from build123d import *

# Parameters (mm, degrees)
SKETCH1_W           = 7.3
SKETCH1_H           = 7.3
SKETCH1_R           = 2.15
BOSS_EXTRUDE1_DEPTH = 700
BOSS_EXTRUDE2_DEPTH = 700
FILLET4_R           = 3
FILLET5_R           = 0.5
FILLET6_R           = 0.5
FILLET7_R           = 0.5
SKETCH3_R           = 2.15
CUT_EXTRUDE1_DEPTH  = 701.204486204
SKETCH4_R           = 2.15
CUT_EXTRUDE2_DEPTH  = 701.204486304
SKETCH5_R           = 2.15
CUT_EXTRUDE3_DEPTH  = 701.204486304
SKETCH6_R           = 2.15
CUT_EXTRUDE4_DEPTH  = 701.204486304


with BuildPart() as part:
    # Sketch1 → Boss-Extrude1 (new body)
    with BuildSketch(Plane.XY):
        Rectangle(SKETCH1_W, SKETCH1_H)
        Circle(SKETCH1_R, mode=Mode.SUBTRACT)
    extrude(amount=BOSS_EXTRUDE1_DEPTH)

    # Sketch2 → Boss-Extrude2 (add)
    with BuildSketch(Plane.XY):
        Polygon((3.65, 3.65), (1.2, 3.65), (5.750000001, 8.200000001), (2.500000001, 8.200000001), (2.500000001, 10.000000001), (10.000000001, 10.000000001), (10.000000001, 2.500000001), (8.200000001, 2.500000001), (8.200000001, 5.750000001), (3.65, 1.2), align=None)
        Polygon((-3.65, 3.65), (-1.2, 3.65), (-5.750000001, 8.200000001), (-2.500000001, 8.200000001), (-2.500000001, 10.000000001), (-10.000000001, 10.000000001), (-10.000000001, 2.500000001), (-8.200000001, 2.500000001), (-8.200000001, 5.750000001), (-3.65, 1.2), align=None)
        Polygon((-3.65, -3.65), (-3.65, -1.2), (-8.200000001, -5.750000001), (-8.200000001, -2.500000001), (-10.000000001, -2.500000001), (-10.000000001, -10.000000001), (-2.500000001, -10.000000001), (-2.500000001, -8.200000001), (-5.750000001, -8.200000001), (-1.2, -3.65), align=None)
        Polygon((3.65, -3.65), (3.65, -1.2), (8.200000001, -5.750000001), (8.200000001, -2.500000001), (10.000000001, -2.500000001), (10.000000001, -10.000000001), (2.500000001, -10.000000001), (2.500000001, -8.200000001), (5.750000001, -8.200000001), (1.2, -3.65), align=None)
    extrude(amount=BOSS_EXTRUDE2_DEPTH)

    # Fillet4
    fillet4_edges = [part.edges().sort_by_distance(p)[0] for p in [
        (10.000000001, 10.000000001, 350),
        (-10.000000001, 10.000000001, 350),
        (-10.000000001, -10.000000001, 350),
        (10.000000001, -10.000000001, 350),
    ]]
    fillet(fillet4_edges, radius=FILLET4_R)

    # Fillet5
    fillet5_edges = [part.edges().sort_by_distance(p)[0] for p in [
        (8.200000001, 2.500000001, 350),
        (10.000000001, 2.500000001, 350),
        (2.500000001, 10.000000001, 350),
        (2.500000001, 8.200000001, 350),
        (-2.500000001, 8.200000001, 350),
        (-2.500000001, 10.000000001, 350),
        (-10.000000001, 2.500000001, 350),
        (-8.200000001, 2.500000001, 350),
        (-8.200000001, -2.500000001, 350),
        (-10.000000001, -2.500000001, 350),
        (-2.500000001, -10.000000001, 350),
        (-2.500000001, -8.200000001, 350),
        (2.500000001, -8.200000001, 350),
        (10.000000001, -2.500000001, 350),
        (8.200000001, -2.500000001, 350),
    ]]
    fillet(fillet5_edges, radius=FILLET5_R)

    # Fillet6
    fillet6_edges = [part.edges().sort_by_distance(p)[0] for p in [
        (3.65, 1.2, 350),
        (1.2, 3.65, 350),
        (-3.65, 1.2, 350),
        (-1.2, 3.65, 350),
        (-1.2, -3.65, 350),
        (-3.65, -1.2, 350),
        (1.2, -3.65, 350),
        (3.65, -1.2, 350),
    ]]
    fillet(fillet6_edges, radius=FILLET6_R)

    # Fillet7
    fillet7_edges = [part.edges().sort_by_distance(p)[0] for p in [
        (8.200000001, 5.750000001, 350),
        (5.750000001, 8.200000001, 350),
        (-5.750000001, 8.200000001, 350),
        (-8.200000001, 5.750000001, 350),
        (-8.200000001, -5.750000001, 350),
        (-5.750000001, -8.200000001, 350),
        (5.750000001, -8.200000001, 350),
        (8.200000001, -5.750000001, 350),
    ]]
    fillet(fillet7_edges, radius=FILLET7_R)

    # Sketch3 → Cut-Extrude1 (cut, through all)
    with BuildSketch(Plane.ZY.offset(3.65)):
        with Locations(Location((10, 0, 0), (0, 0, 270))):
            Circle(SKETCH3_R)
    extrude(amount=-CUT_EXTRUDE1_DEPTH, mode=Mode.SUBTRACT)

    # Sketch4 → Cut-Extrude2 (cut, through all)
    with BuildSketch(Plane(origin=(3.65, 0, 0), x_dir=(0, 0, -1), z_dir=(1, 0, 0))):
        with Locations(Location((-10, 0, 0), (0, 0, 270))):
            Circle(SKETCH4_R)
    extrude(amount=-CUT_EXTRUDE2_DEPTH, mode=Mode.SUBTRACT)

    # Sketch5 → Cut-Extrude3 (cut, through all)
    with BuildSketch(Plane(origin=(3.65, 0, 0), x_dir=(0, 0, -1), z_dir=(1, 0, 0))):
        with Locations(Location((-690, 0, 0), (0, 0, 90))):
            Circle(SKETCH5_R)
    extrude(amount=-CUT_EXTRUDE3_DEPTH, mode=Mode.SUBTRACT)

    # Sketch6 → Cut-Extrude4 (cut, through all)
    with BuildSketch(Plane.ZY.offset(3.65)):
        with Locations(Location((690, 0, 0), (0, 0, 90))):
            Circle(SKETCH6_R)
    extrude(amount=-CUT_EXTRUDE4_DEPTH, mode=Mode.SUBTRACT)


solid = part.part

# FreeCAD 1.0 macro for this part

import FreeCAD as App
import Part
import Sketcher

V = App.Vector
Q = App.Units.Quantity


def edges_at(feature, points):
    """Names of the edges that pass closest to the given points."""
    edges = feature.Shape.Edges
    near = lambda p: min(range(len(edges)), key=lambda i: edges[i].distToShape(Part.Vertex(*p))[0])
    return sorted({f"Edge{near(p) + 1}" for p in points})

doc = App.newDocument("Part")
body = doc.addObject("PartDesign::Body", "Body")

# Sketch on XY plane
sketch1 = body.newObject("Sketcher::SketchObject", "Sketch")
sketch1.AttachmentSupport = (doc.getObject("XY_Plane"), [""])
sketch1.MapMode = "FlatFace"
sketch1.addGeometry([
    Part.LineSegment(V(-3.6, 3.6, 0), V(-3.6, -3.6, 0)),  # 0
    Part.LineSegment(V(-3.6, -3.6, 0), V(3.6, -3.6, 0)),  # 1
    Part.LineSegment(V(3.6, -3.6, 0), V(3.6, 3.6, 0)),  # 2
    Part.LineSegment(V(3.6, 3.6, 0), V(-3.6, 3.6, 0)),  # 3
    Part.Circle(V(0, 0, 0), V(0, 0, 1), 2.1),  # 4
], False)
sketch1.addConstraint([
    Sketcher.Constraint("Coincident", 0, 2, 1, 1),
    Sketcher.Constraint("Coincident", 1, 2, 2, 1),
    Sketcher.Constraint("Coincident", 2, 2, 3, 1),
    Sketcher.Constraint("Coincident", 3, 2, 0, 1),
    Sketcher.Constraint("Vertical", 0),
    Sketcher.Constraint("Horizontal", 1),
    Sketcher.Constraint("Vertical", 2),
    Sketcher.Constraint("Horizontal", 3),
    Sketcher.Constraint("Coincident", 4, 3, -1, 1),
    Sketcher.Constraint("Symmetric", 0, 2, 2, 2, -1, 1),
    Sketcher.Constraint("Equal", 3, 0),
    Sketcher.Constraint("Diameter", 4, Q("4.3 mm")),
    Sketcher.Constraint("DistanceX", 1, 1, 1, 2, Q("7.3 mm")),
])
pad1 = body.newObject("PartDesign::Pad", "Pad")
pad1.Profile = sketch1
pad1.Length = 700

# Sketch on XY plane
sketch2 = body.newObject("Sketcher::SketchObject", "Sketch001")
sketch2.AttachmentSupport = (doc.getObject("XY_Plane"), [""])
sketch2.MapMode = "FlatFace"
sketch2.addGeometry([
    Part.LineSegment(V(1.2, 3.6, 0), V(3.6, 3.6, 0)),  # 0
    Part.LineSegment(V(3.6, 3.6, 0), V(3.6, 1.2, 0)),  # 1
    Part.LineSegment(V(3.6, 1.2, 0), V(8.2, 5.8, 0)),  # 2
    Part.LineSegment(V(8.2, 5.8, 0), V(8.2, 2.5, 0)),  # 3
    Part.LineSegment(V(8.2, 2.5, 0), V(10, 2.5, 0)),  # 4
    Part.LineSegment(V(10, 2.5, 0), V(10, 10, 0)),  # 5
    Part.LineSegment(V(10, 10, 0), V(2.5, 10, 0)),  # 6
    Part.LineSegment(V(2.5, 10, 0), V(2.5, 8.2, 0)),  # 7
    Part.LineSegment(V(2.5, 8.2, 0), V(5.8, 8.2, 0)),  # 8
    Part.LineSegment(V(5.8, 8.2, 0), V(1.2, 3.6, 0)),  # 9
    Part.LineSegment(V(-3.6, 3.6, 0), V(-1.2, 3.6, 0)),  # 10
    Part.LineSegment(V(-1.2, 3.6, 0), V(-5.8, 8.2, 0)),  # 11
    Part.LineSegment(V(-5.8, 8.2, 0), V(-2.5, 8.2, 0)),  # 12
    Part.LineSegment(V(-2.5, 8.2, 0), V(-2.5, 10, 0)),  # 13
    Part.LineSegment(V(-2.5, 10, 0), V(-10, 10, 0)),  # 14
    Part.LineSegment(V(-10, 10, 0), V(-10, 2.5, 0)),  # 15
    Part.LineSegment(V(-10, 2.5, 0), V(-8.2, 2.5, 0)),  # 16
    Part.LineSegment(V(-8.2, 2.5, 0), V(-8.2, 5.8, 0)),  # 17
    Part.LineSegment(V(-8.2, 5.8, 0), V(-3.6, 1.2, 0)),  # 18
    Part.LineSegment(V(-3.6, 1.2, 0), V(-3.6, 3.6, 0)),  # 19
    Part.LineSegment(V(-3.6, -3.6, 0), V(-3.6, -1.2, 0)),  # 20
    Part.LineSegment(V(-3.6, -1.2, 0), V(-8.2, -5.8, 0)),  # 21
    Part.LineSegment(V(-8.2, -5.8, 0), V(-8.2, -2.5, 0)),  # 22
    Part.LineSegment(V(-8.2, -2.5, 0), V(-10, -2.5, 0)),  # 23
    Part.LineSegment(V(-10, -2.5, 0), V(-10, -10, 0)),  # 24
    Part.LineSegment(V(-10, -10, 0), V(-2.5, -10, 0)),  # 25
    Part.LineSegment(V(-2.5, -10, 0), V(-2.5, -8.2, 0)),  # 26
    Part.LineSegment(V(-2.5, -8.2, 0), V(-5.8, -8.2, 0)),  # 27
    Part.LineSegment(V(-5.8, -8.2, 0), V(-1.2, -3.6, 0)),  # 28
    Part.LineSegment(V(-1.2, -3.6, 0), V(-3.6, -3.6, 0)),  # 29
    Part.LineSegment(V(3.6, -1.2, 0), V(3.6, -3.6, 0)),  # 30
    Part.LineSegment(V(3.6, -3.6, 0), V(1.2, -3.6, 0)),  # 31
    Part.LineSegment(V(1.2, -3.6, 0), V(5.8, -8.2, 0)),  # 32
    Part.LineSegment(V(5.8, -8.2, 0), V(2.5, -8.2, 0)),  # 33
    Part.LineSegment(V(2.5, -8.2, 0), V(2.5, -10, 0)),  # 34
    Part.LineSegment(V(2.5, -10, 0), V(10, -10, 0)),  # 35
    Part.LineSegment(V(10, -10, 0), V(10, -2.5, 0)),  # 36
    Part.LineSegment(V(10, -2.5, 0), V(8.2, -2.5, 0)),  # 37
    Part.LineSegment(V(8.2, -2.5, 0), V(8.2, -5.8, 0)),  # 38
    Part.LineSegment(V(8.2, -5.8, 0), V(3.6, -1.2, 0)),  # 39
], False)
sketch2.addConstraint([
    Sketcher.Constraint("Coincident", 0, 2, 1, 1),
    Sketcher.Constraint("Coincident", 1, 2, 2, 1),
    Sketcher.Constraint("Coincident", 2, 2, 3, 1),
    Sketcher.Constraint("Coincident", 3, 2, 4, 1),
    Sketcher.Constraint("Coincident", 4, 2, 5, 1),
    Sketcher.Constraint("Coincident", 5, 2, 6, 1),
    Sketcher.Constraint("Coincident", 6, 2, 7, 1),
    Sketcher.Constraint("Coincident", 7, 2, 8, 1),
    Sketcher.Constraint("Coincident", 8, 2, 9, 1),
    Sketcher.Constraint("Coincident", 9, 2, 0, 1),
    Sketcher.Constraint("Coincident", 10, 2, 11, 1),
    Sketcher.Constraint("Coincident", 11, 2, 12, 1),
    Sketcher.Constraint("Coincident", 12, 2, 13, 1),
    Sketcher.Constraint("Coincident", 13, 2, 14, 1),
    Sketcher.Constraint("Coincident", 14, 2, 15, 1),
    Sketcher.Constraint("Coincident", 15, 2, 16, 1),
    Sketcher.Constraint("Coincident", 16, 2, 17, 1),
    Sketcher.Constraint("Coincident", 17, 2, 18, 1),
    Sketcher.Constraint("Coincident", 18, 2, 19, 1),
    Sketcher.Constraint("Coincident", 19, 2, 10, 1),
    Sketcher.Constraint("Coincident", 20, 2, 21, 1),
    Sketcher.Constraint("Coincident", 21, 2, 22, 1),
    Sketcher.Constraint("Coincident", 22, 2, 23, 1),
    Sketcher.Constraint("Coincident", 23, 2, 24, 1),
    Sketcher.Constraint("Coincident", 24, 2, 25, 1),
    Sketcher.Constraint("Coincident", 25, 2, 26, 1),
    Sketcher.Constraint("Coincident", 26, 2, 27, 1),
    Sketcher.Constraint("Coincident", 27, 2, 28, 1),
    Sketcher.Constraint("Coincident", 28, 2, 29, 1),
    Sketcher.Constraint("Coincident", 29, 2, 20, 1),
    Sketcher.Constraint("Coincident", 30, 2, 31, 1),
    Sketcher.Constraint("Coincident", 31, 2, 32, 1),
    Sketcher.Constraint("Coincident", 32, 2, 33, 1),
    Sketcher.Constraint("Coincident", 33, 2, 34, 1),
    Sketcher.Constraint("Coincident", 34, 2, 35, 1),
    Sketcher.Constraint("Coincident", 35, 2, 36, 1),
    Sketcher.Constraint("Coincident", 36, 2, 37, 1),
    Sketcher.Constraint("Coincident", 37, 2, 38, 1),
    Sketcher.Constraint("Coincident", 38, 2, 39, 1),
    Sketcher.Constraint("Coincident", 39, 2, 30, 1),
    Sketcher.Constraint("Horizontal", 0),
    Sketcher.Constraint("Vertical", 1),
    Sketcher.Constraint("Vertical", 3),
    Sketcher.Constraint("Horizontal", 4),
    Sketcher.Constraint("Vertical", 5),
    Sketcher.Constraint("Horizontal", 6),
    Sketcher.Constraint("Vertical", 7),
    Sketcher.Constraint("Horizontal", 8),
    Sketcher.Constraint("Horizontal", 10),
    Sketcher.Constraint("Horizontal", 12),
    Sketcher.Constraint("Vertical", 13),
    Sketcher.Constraint("Horizontal", 14),
    Sketcher.Constraint("Vertical", 15),
    Sketcher.Constraint("Horizontal", 16),
    Sketcher.Constraint("Vertical", 17),
    Sketcher.Constraint("Vertical", 19),
    Sketcher.Constraint("Vertical", 20),
    Sketcher.Constraint("Vertical", 22),
    Sketcher.Constraint("Horizontal", 23),
    Sketcher.Constraint("Vertical", 24),
    Sketcher.Constraint("Horizontal", 25),
    Sketcher.Constraint("Vertical", 26),
    Sketcher.Constraint("Horizontal", 27),
    Sketcher.Constraint("Horizontal", 29),
    Sketcher.Constraint("Vertical", 30),
    Sketcher.Constraint("Horizontal", 31),
    Sketcher.Constraint("Horizontal", 33),
    Sketcher.Constraint("Vertical", 34),
    Sketcher.Constraint("Horizontal", 35),
    Sketcher.Constraint("Vertical", 36),
    Sketcher.Constraint("Horizontal", 37),
    Sketcher.Constraint("Vertical", 38),
    Sketcher.Constraint("Symmetric", 1, 2, 20, 2, -1, 1),
    Sketcher.Constraint("Symmetric", 2, 2, 21, 2, -1, 1),
    Sketcher.Constraint("Symmetric", 4, 2, 23, 2, -1, 1),
    Sketcher.Constraint("Symmetric", 6, 2, 25, 2, -1, 1),
    Sketcher.Constraint("Symmetric", 8, 2, 27, 2, -1, 1),
    Sketcher.Constraint("Symmetric", 9, 2, 28, 2, -1, 1),
    Sketcher.Constraint("Symmetric", 19, 2, 30, 2, -1, 1),
    Sketcher.Constraint("Symmetric", 11, 2, 32, 2, -1, 1),
    Sketcher.Constraint("Symmetric", 13, 2, 34, 2, -1, 1),
    Sketcher.Constraint("Symmetric", 15, 2, 36, 2, -1, 1),
    Sketcher.Constraint("Symmetric", 17, 2, 38, 2, -1, 1),
    Sketcher.Constraint("Symmetric", 9, 2, 10, 2, -2),
    Sketcher.Constraint("Symmetric", 8, 2, 11, 2, -2),
    Sketcher.Constraint("Symmetric", 6, 2, 13, 2, -2),
    Sketcher.Constraint("Symmetric", 4, 2, 15, 2, -2),
    Sketcher.Constraint("Symmetric", 2, 2, 17, 2, -2),
    Sketcher.Constraint("Symmetric", 1, 2, 18, 2, -2),
    Sketcher.Constraint("Parallel", 2, 9),
    Sketcher.Constraint("Perpendicular", 9, 11),
    Sketcher.Constraint("Perpendicular", 28, 32),
    Sketcher.Constraint("Parallel", 32, 39),
    Sketcher.Constraint("Equal", 31, 1),
    Sketcher.Constraint("Equal", 33, 3),
    Sketcher.Constraint("Equal", 35, 5),
    Sketcher.Constraint("Equal", 37, 7),
    Sketcher.Constraint("DistanceX", 4, 1, 4, 2, Q("1.8 mm")),
    Sketcher.Constraint("DistanceX", 6, 2, 6, 1, Q("7.5 mm")),
    Sketcher.Constraint("DistanceX", -1, 1, 4, 2, Q("10 mm")),
    Sketcher.Constraint("DistanceY", -1, 1, 5, 2, Q("10 mm")),
    Sketcher.Constraint("DistanceY", 1, 2, 7, 2, Q("7 mm")),
    Sketcher.Constraint("DistanceX", 0, 1, 0, 2, Q("2.45 mm")),
])
pad2 = body.newObject("PartDesign::Pad", "Pad001")
pad2.Profile = sketch2
pad2.Length = 700
doc.recompute()

fillet = body.newObject("PartDesign::Fillet", "Fillet")
fillet.Base = (pad2, edges_at(pad2, [
    (10, 10, 350),
    (-10, 10, 350),
    (-10, -10, 350),
    (10, -10, 350),
]))
fillet.Radius = 3
doc.recompute()

fillet2 = body.newObject("PartDesign::Fillet", "Fillet001")
fillet2.Base = (fillet, edges_at(fillet, [
    (8.2, 2.5, 350),
    (10, 2.5, 350),
    (2.5, 10, 350),
    (2.5, 8.2, 350),
    (-2.5, 8.2, 350),
    (-2.5, 10, 350),
    (-10, 2.5, 350),
    (-8.2, 2.5, 350),
    (-8.2, -2.5, 350),
    (-10, -2.5, 350),
    (-2.5, -10, 350),
    (-2.5, -8.2, 350),
    (2.5, -8.2, 350),
    (10, -2.5, 350),
    (8.2, -2.5, 350),
]))
fillet2.Radius = 0.5
doc.recompute()

fillet3 = body.newObject("PartDesign::Fillet", "Fillet002")
fillet3.Base = (fillet2, edges_at(fillet2, [
    (3.65, 1.2, 350),
    (1.2, 3.65, 350),
    (-3.65, 1.2, 350),
    (-1.2, 3.65, 350),
    (-1.2, -3.65, 350),
    (-3.65, -1.2, 350),
    (1.2, -3.65, 350),
    (3.65, -1.2, 350),
]))
fillet3.Radius = 0.5
doc.recompute()

fillet4 = body.newObject("PartDesign::Fillet", "Fillet003")
fillet4.Base = (fillet3, edges_at(fillet3, [
    (8.2, 5.75, 350),
    (5.75, 8.2, 350),
    (-5.75, 8.2, 350),
    (-8.2, 5.75, 350),
    (-8.2, -5.75, 350),
    (-5.75, -8.2, 350),
    (5.75, -8.2, 350),
    (8.2, -5.75, 350),
]))
fillet4.Radius = 0.5

# Sketch on YZ plane
sketch3 = body.newObject("Sketcher::SketchObject", "Sketch002")
sketch3.AttachmentSupport = (doc.getObject("YZ_Plane"), [""])
sketch3.MapMode = "FlatFace"
sketch3.AttachmentOffset = App.Placement(V(0, 0, -3.65), App.Rotation())
sketch3.addGeometry(Part.Circle(V(0, 10, 0), V(0, 0, 1), 2.1), False)
sketch3.addConstraint([
    Sketcher.Constraint("PointOnObject", 0, 3, -2),
    Sketcher.Constraint("Diameter", 0, Q("4.3 mm")),
    Sketcher.Constraint("DistanceY", -1, 1, 0, 3, Q("10 mm")),
])
pocket1 = body.newObject("PartDesign::Pocket", "Pocket")
pocket1.Profile = sketch3
pocket1.Type = "ThroughAll"
pocket1.Reversed = True

# Sketch on YZ plane
sketch4 = body.newObject("Sketcher::SketchObject", "Sketch003")
sketch4.AttachmentSupport = (doc.getObject("YZ_Plane"), [""])
sketch4.MapMode = "FlatFace"
sketch4.AttachmentOffset = App.Placement(V(0, 0, 3.65), App.Rotation())
sketch4.addGeometry(Part.Circle(V(0, 10, 0), V(0, 0, 1), 2.1), False)
sketch4.addConstraint([
    Sketcher.Constraint("PointOnObject", 0, 3, -2),
    Sketcher.Constraint("Diameter", 0, Q("4.3 mm")),
    Sketcher.Constraint("DistanceY", -1, 1, 0, 3, Q("10 mm")),
])
pocket2 = body.newObject("PartDesign::Pocket", "Pocket001")
pocket2.Profile = sketch4
pocket2.Type = "ThroughAll"

# Sketch on YZ plane
sketch5 = body.newObject("Sketcher::SketchObject", "Sketch004")
sketch5.AttachmentSupport = (doc.getObject("YZ_Plane"), [""])
sketch5.MapMode = "FlatFace"
sketch5.AttachmentOffset = App.Placement(V(0, 0, 3.65), App.Rotation())
sketch5.addGeometry(Part.Circle(V(0, 690, 0), V(0, 0, 1), 2.1), False)
sketch5.addConstraint([
    Sketcher.Constraint("PointOnObject", 0, 3, -2),
    Sketcher.Constraint("Diameter", 0, Q("4.3 mm")),
    Sketcher.Constraint("DistanceY", -1, 1, 0, 3, Q("690 mm")),
])
pocket3 = body.newObject("PartDesign::Pocket", "Pocket002")
pocket3.Profile = sketch5
pocket3.Type = "ThroughAll"

# Sketch on YZ plane
sketch6 = body.newObject("Sketcher::SketchObject", "Sketch005")
sketch6.AttachmentSupport = (doc.getObject("YZ_Plane"), [""])
sketch6.MapMode = "FlatFace"
sketch6.AttachmentOffset = App.Placement(V(0, 0, -3.65), App.Rotation())
sketch6.addGeometry(Part.Circle(V(0, 690, 0), V(0, 0, 1), 2.1), False)
sketch6.addConstraint([
    Sketcher.Constraint("PointOnObject", 0, 3, -2),
    Sketcher.Constraint("Diameter", 0, Q("4.3 mm")),
    Sketcher.Constraint("DistanceY", -1, 1, 0, 3, Q("690 mm")),
])
pocket4 = body.newObject("PartDesign::Pocket", "Pocket003")
pocket4.Profile = sketch6
pocket4.Type = "ThroughAll"
pocket4.Reversed = True

doc.recompute()
